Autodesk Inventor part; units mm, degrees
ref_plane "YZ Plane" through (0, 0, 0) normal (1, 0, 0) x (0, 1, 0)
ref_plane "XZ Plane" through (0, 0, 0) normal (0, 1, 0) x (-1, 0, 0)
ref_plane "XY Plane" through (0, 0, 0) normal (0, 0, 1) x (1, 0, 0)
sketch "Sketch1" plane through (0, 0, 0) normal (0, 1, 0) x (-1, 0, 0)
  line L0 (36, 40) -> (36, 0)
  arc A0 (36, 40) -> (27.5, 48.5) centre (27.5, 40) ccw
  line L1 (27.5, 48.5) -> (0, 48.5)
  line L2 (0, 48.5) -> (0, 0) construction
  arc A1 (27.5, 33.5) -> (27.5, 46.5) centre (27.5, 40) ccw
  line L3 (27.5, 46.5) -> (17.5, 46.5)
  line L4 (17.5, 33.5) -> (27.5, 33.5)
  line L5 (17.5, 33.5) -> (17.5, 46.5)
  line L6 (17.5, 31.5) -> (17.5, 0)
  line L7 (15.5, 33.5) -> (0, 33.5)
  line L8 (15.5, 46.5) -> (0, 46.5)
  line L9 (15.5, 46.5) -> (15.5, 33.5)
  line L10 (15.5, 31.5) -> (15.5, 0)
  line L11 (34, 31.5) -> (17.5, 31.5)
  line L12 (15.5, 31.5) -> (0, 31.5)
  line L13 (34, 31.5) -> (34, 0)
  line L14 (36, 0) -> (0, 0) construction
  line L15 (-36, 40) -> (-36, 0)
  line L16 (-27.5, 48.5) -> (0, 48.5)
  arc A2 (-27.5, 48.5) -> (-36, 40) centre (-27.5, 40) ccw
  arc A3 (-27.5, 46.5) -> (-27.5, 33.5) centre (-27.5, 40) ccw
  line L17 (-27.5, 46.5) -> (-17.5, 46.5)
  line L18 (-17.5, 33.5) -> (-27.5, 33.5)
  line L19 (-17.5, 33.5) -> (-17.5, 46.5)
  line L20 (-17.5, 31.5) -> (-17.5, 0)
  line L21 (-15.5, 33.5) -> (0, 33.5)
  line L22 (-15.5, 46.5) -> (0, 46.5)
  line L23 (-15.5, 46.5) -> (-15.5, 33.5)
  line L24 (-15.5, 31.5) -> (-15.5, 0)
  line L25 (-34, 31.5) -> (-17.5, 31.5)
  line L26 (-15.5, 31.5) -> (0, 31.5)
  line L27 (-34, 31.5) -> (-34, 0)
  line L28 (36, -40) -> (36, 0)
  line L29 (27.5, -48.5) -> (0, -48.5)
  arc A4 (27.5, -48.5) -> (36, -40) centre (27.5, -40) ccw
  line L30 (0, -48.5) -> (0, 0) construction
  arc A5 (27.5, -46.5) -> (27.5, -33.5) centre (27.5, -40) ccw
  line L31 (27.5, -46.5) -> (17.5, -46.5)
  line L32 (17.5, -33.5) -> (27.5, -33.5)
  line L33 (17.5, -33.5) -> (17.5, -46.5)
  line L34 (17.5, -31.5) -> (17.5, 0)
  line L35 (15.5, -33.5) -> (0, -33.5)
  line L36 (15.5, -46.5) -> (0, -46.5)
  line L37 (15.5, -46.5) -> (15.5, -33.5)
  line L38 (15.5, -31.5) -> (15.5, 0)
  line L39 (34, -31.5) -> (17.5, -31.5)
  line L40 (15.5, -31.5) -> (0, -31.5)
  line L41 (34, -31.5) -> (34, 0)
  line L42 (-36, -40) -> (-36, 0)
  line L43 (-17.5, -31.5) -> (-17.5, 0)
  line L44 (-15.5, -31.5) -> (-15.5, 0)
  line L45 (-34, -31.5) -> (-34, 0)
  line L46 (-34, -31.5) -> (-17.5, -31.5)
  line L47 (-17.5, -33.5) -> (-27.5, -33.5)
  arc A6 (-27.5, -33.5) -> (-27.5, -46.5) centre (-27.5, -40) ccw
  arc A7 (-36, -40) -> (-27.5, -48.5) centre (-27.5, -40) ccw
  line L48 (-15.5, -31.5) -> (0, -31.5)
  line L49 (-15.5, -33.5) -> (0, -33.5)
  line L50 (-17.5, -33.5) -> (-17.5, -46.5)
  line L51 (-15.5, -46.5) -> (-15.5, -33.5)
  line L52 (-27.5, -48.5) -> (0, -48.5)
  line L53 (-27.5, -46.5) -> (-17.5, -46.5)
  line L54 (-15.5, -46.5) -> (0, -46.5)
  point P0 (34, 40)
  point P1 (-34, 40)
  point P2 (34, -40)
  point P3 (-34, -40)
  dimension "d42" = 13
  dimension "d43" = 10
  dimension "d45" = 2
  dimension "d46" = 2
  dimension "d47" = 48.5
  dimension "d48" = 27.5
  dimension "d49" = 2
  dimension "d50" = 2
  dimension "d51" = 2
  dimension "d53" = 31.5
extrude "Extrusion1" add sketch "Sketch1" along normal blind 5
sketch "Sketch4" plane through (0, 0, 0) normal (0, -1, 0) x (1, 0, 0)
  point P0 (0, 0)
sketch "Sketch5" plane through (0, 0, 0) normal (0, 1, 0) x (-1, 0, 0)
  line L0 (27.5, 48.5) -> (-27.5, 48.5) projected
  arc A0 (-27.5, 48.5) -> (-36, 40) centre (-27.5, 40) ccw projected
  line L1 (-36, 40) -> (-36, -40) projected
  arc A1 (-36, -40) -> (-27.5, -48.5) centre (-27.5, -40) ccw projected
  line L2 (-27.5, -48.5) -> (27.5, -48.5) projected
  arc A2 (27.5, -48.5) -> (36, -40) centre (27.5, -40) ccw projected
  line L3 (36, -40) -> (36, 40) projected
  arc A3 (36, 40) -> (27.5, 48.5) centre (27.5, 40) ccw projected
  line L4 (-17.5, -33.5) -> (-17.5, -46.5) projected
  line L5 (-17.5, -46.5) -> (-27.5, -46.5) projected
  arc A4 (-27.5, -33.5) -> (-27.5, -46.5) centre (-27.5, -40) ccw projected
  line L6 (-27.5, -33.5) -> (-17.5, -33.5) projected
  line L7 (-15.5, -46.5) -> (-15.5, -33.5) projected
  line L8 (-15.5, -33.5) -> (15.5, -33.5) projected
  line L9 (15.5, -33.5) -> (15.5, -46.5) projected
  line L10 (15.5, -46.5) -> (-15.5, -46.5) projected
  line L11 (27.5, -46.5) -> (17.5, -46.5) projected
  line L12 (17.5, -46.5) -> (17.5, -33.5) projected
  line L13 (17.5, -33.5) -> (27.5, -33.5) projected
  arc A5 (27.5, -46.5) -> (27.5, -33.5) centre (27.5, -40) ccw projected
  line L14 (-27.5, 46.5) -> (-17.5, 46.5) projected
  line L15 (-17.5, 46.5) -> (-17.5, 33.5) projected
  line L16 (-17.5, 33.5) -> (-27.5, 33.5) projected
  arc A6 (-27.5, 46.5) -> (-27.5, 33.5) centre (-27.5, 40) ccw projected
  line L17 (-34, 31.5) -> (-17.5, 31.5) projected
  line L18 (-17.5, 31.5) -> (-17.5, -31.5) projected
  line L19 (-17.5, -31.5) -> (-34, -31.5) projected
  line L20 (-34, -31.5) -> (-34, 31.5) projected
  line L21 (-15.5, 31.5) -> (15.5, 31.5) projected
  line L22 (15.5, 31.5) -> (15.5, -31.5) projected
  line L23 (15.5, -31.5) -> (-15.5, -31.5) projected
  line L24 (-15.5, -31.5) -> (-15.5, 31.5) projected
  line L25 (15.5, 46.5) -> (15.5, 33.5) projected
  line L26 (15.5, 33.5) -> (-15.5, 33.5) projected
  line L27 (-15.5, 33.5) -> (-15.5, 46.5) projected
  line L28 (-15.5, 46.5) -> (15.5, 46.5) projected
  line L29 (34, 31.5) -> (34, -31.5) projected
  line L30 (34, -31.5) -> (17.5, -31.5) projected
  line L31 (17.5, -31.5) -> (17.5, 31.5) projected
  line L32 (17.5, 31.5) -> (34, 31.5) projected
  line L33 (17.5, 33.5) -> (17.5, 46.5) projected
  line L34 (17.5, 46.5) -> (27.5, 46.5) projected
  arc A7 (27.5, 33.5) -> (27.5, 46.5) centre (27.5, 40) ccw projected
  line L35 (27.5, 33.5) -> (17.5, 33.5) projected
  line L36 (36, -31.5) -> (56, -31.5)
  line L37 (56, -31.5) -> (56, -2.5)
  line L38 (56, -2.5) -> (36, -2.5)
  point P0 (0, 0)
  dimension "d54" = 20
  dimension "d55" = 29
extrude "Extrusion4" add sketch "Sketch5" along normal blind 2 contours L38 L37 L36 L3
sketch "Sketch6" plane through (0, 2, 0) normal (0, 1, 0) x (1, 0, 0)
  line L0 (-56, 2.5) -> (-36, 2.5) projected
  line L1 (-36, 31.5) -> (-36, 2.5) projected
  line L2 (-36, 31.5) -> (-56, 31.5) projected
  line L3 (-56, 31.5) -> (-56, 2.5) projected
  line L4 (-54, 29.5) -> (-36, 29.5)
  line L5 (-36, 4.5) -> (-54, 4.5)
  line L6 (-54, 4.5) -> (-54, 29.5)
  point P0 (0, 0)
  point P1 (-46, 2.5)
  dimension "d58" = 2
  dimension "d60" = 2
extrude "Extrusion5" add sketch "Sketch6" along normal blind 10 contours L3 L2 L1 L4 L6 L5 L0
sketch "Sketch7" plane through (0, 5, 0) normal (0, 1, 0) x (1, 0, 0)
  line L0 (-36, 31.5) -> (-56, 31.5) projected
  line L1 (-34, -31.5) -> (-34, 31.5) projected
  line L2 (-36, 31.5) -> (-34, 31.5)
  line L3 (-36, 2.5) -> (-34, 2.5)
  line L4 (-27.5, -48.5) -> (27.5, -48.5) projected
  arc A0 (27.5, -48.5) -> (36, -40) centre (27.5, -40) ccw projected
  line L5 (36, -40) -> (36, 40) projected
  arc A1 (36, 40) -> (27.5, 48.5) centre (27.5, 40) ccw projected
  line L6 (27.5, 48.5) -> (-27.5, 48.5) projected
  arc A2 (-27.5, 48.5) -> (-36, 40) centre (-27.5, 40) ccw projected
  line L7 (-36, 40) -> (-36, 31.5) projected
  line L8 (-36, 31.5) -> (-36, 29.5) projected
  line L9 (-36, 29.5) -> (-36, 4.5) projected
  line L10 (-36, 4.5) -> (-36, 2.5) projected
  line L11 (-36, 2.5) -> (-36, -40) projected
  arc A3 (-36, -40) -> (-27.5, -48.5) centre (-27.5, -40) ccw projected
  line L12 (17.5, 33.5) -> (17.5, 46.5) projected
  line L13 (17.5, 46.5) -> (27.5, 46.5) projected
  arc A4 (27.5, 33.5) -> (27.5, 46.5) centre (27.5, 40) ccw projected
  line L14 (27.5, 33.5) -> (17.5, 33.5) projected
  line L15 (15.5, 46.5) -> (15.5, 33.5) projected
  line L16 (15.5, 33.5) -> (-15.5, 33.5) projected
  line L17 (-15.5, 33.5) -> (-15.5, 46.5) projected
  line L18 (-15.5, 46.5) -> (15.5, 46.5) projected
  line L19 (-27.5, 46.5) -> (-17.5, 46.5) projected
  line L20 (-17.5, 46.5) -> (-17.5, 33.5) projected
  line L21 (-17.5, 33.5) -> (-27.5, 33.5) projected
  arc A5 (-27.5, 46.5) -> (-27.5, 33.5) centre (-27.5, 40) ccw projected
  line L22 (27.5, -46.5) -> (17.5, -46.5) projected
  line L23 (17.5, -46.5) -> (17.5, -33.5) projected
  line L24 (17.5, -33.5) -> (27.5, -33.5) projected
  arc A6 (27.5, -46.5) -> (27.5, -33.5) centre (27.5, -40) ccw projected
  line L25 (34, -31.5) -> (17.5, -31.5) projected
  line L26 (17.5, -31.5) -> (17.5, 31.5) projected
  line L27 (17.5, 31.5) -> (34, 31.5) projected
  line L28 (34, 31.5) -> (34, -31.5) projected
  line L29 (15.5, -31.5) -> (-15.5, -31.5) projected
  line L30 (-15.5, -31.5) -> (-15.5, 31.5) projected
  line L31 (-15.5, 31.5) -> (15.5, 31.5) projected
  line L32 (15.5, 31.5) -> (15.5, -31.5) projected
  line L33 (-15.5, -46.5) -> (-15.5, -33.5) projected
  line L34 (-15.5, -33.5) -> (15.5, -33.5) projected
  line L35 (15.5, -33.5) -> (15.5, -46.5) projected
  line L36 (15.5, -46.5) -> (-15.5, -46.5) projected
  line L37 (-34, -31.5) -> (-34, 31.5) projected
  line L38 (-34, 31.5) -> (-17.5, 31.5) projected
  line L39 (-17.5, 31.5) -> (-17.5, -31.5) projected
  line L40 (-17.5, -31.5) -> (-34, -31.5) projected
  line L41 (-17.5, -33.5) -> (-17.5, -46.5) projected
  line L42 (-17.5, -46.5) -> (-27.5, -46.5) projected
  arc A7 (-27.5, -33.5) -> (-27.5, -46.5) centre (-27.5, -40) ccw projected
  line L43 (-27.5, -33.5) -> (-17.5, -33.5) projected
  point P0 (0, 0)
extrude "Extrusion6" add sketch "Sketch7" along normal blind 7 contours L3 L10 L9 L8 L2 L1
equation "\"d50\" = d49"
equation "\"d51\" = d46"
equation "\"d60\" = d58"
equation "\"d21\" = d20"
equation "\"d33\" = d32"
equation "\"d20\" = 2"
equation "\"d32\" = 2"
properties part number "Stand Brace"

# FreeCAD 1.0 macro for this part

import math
import FreeCAD as App
import Part
import Sketcher


def add_polygon(sketch, points):
    """Adds a closed chain of lines whose ends are joined by coincident constraints."""
    first, n = sketch.GeometryCount, len(points)
    for a, b in zip(points, points[1:] + points[:1]):
        sketch.addGeometry(Part.LineSegment(App.Vector(*a, 0), App.Vector(*b, 0)), False)
    for i in range(n):
        sketch.addConstraint(Sketcher.Constraint("Coincident", first + i, 2, first + (i + 1) % n, 1))

doc = App.newDocument("Part")
body = doc.addObject("PartDesign::Body", "Body")

sketch1 = body.newObject("Sketcher::SketchObject", "Sketch")
sketch1.AttachmentSupport = (doc.getObject("XZ_Plane"), [""])
sketch1.MapMode = "FlatFace"
sketch1.addGeometry(Part.LineSegment(App.Vector(-36, -40, 0), App.Vector(-36, 40, 0)), False)
sketch1.addGeometry(Part.ArcOfCircle(Part.Circle(App.Vector(-28, 40, 0), App.Vector(0, 0, 1), 8), math.radians(90), math.radians(180)), False)
sketch1.addGeometry(Part.LineSegment(App.Vector(-28, 48, 0), App.Vector(28, 48, 0)), False)
sketch1.addGeometry(Part.ArcOfCircle(Part.Circle(App.Vector(28, 40, 0), App.Vector(0, 0, 1), 8), math.radians(0), math.radians(90)), False)
sketch1.addGeometry(Part.LineSegment(App.Vector(36, 40, 0), App.Vector(36, -40, 0)), False)
sketch1.addGeometry(Part.ArcOfCircle(Part.Circle(App.Vector(28, -40, 0), App.Vector(0, 0, 1), 8), math.radians(-90), math.radians(0)), False)
sketch1.addGeometry(Part.LineSegment(App.Vector(28, -48, 0), App.Vector(-28, -48, 0)), False)
sketch1.addGeometry(Part.ArcOfCircle(Part.Circle(App.Vector(-28, -40, 0), App.Vector(0, 0, 1), 8), math.radians(180), math.radians(270)), False)
sketch1.addGeometry(Part.LineSegment(App.Vector(28, -34, 0), App.Vector(18, -34, 0)), False)
sketch1.addGeometry(Part.LineSegment(App.Vector(18, -34, 0), App.Vector(18, -46, 0)), False)
sketch1.addGeometry(Part.LineSegment(App.Vector(18, -46, 0), App.Vector(28, -46, 0)), False)
sketch1.addGeometry(Part.ArcOfCircle(Part.Circle(App.Vector(28, -40, 0), App.Vector(0, 0, 1), 6), math.radians(-90), math.radians(90)), False)
add_polygon(sketch1, [(16, -34), (-16, -34), (-16, -46), (16, -46)])
sketch1.addGeometry(Part.ArcOfCircle(Part.Circle(App.Vector(-28, -40, 0), App.Vector(0, 0, 1), 6), math.radians(90), math.radians(270)), False)
sketch1.addGeometry(Part.LineSegment(App.Vector(-28, -46, 0), App.Vector(-18, -46, 0)), False)
sketch1.addGeometry(Part.LineSegment(App.Vector(-18, -46, 0), App.Vector(-18, -34, 0)), False)
sketch1.addGeometry(Part.LineSegment(App.Vector(-18, -34, 0), App.Vector(-28, -34, 0)), False)
add_polygon(sketch1, [(34, 32), (18, 32), (18, -32), (34, -32)])
sketch1.addGeometry(Part.ArcOfCircle(Part.Circle(App.Vector(28, 40, 0), App.Vector(0, 0, 1), 6), math.radians(-90), math.radians(90)), False)
sketch1.addGeometry(Part.LineSegment(App.Vector(28, 46, 0), App.Vector(18, 46, 0)), False)
sketch1.addGeometry(Part.LineSegment(App.Vector(18, 46, 0), App.Vector(18, 34, 0)), False)
sketch1.addGeometry(Part.LineSegment(App.Vector(18, 34, 0), App.Vector(28, 34, 0)), False)
add_polygon(sketch1, [(16, 32), (-16, 32), (-16, -32), (16, -32)])
add_polygon(sketch1, [(-18, -32), (-18, 32), (-34, 32), (-34, -32)])
add_polygon(sketch1, [(-16, 46), (-16, 34), (16, 34), (16, 46)])
sketch1.addGeometry(Part.ArcOfCircle(Part.Circle(App.Vector(-28, 40, 0), App.Vector(0, 0, 1), 6), math.radians(90), math.radians(270)), False)
sketch1.addGeometry(Part.LineSegment(App.Vector(-28, 34, 0), App.Vector(-18, 34, 0)), False)
sketch1.addGeometry(Part.LineSegment(App.Vector(-18, 34, 0), App.Vector(-18, 46, 0)), False)
sketch1.addGeometry(Part.LineSegment(App.Vector(-18, 46, 0), App.Vector(-28, 46, 0)), False)
sketch1.addConstraint([
    Sketcher.Constraint("Tangent", 0, 2, 1, 2),
    Sketcher.Constraint("Tangent", 1, 1, 2, 1),
    Sketcher.Constraint("Tangent", 2, 2, 3, 2),
    Sketcher.Constraint("Tangent", 3, 1, 4, 1),
    Sketcher.Constraint("Tangent", 4, 2, 5, 2),
    Sketcher.Constraint("Tangent", 5, 1, 6, 1),
    Sketcher.Constraint("Tangent", 6, 2, 7, 2),
    Sketcher.Constraint("Tangent", 7, 1, 0, 1),
    Sketcher.Constraint("Coincident", 8, 2, 9, 1),
    Sketcher.Constraint("Coincident", 9, 2, 10, 1),
    Sketcher.Constraint("Tangent", 10, 2, 11, 1),
    Sketcher.Constraint("Tangent", 11, 2, 8, 1),
    Sketcher.Constraint("Tangent", 16, 2, 17, 1),
    Sketcher.Constraint("Coincident", 17, 2, 18, 1),
    Sketcher.Constraint("Coincident", 18, 2, 19, 1),
    Sketcher.Constraint("Tangent", 19, 2, 16, 1),
    Sketcher.Constraint("Tangent", 24, 2, 25, 1),
    Sketcher.Constraint("Coincident", 25, 2, 26, 1),
    Sketcher.Constraint("Coincident", 26, 2, 27, 1),
    Sketcher.Constraint("Tangent", 27, 2, 24, 1),
    Sketcher.Constraint("Tangent", 40, 2, 41, 1),
    Sketcher.Constraint("Coincident", 41, 2, 42, 1),
    Sketcher.Constraint("Coincident", 42, 2, 43, 1),
    Sketcher.Constraint("Tangent", 43, 2, 40, 1),
    Sketcher.Constraint("Vertical", 0),
    Sketcher.Constraint("Horizontal", 2),
    Sketcher.Constraint("Vertical", 4),
    Sketcher.Constraint("Horizontal", 6),
    Sketcher.Constraint("Horizontal", 8),
    Sketcher.Constraint("Vertical", 9),
    Sketcher.Constraint("Horizontal", 10),
    Sketcher.Constraint("Horizontal", 12),
    Sketcher.Constraint("Vertical", 13),
    Sketcher.Constraint("Horizontal", 14),
    Sketcher.Constraint("Vertical", 15),
    Sketcher.Constraint("Horizontal", 17),
    Sketcher.Constraint("Vertical", 18),
    Sketcher.Constraint("Horizontal", 19),
    Sketcher.Constraint("Horizontal", 20),
    Sketcher.Constraint("Vertical", 21),
    Sketcher.Constraint("Horizontal", 22),
    Sketcher.Constraint("Vertical", 23),
    Sketcher.Constraint("Horizontal", 25),
    Sketcher.Constraint("Vertical", 26),
    Sketcher.Constraint("Horizontal", 27),
    Sketcher.Constraint("Horizontal", 28),
    Sketcher.Constraint("Vertical", 29),
    Sketcher.Constraint("Horizontal", 30),
    Sketcher.Constraint("Vertical", 31),
    Sketcher.Constraint("Vertical", 32),
    Sketcher.Constraint("Horizontal", 33),
    Sketcher.Constraint("Vertical", 34),
    Sketcher.Constraint("Horizontal", 35),
    Sketcher.Constraint("Vertical", 36),
    Sketcher.Constraint("Horizontal", 37),
    Sketcher.Constraint("Vertical", 38),
    Sketcher.Constraint("Horizontal", 39),
    Sketcher.Constraint("Horizontal", 41),
    Sketcher.Constraint("Vertical", 42),
    Sketcher.Constraint("Horizontal", 43),
    Sketcher.Constraint("Coincident", 11, 3, 5, 3),
    Sketcher.Constraint("Coincident", 16, 3, 7, 3),
    Sketcher.Constraint("Coincident", 24, 3, 3, 3),
    Sketcher.Constraint("Coincident", 40, 3, 1, 3),
    Sketcher.Constraint("Equal", 1, 3),
    Sketcher.Constraint("Equal", 3, 5),
    Sketcher.Constraint("Equal", 5, 7),
    Sketcher.Constraint("Equal", 11, 16),
    Sketcher.Constraint("Equal", 16, 24),
    Sketcher.Constraint("Equal", 24, 40),
    Sketcher.Constraint("Symmetric", 1, 3, 5, 3, -1, 1),
    Sketcher.Constraint("Symmetric", 28, 2, 30, 2, -1, 1),
    Sketcher.Constraint("Symmetric", 21, 2, 32, 2, -1, 1),
    Sketcher.Constraint("Symmetric", 23, 2, 34, 2, -1, 1),
    Sketcher.Constraint("Symmetric", 15, 2, 36, 2, -1, 1),
    Sketcher.Constraint("Symmetric", 13, 2, 38, 2, -1, 1),
    Sketcher.Constraint("Horizontal", 11, 2, 12, 2),
    Sketcher.Constraint("Horizontal", 10, 2, 13, 2),
    Sketcher.Constraint("Horizontal", 23, 2, 28, 2),
    Sketcher.Constraint("Horizontal", 22, 2, 29, 2),
    Sketcher.Constraint("Vertical", 9, 2, 20, 2),
    Sketcher.Constraint("Vertical", 21, 2, 25, 2),
    Sketcher.Constraint("Vertical", 13, 2, 28, 2),
    Sketcher.Constraint("Vertical", 15, 2, 30, 2),
    Sketcher.Constraint("Vertical", 18, 2, 32, 2),
    Sketcher.Constraint("Vertical", 35, 2, 41, 2),
    Sketcher.Constraint("Radius", 11, 6.5),
    Sketcher.Constraint("DistanceX", 8, 2, 8, 1, 10.0),
    Sketcher.Constraint("DistanceY", 5, 1, 9, 2, 2.0),
    Sketcher.Constraint("DistanceX", 14, 2, 9, 2, 2.0),
    Sketcher.Constraint("DistanceY", 8, 2, 21, 2, 2.0),
    Sketcher.Constraint("DistanceX", 22, 2, 4, 2, 2.0),
    Sketcher.Constraint("DistanceX", 1, 3, -1, 1, 27.5),
    Sketcher.Constraint("DistanceY", -1, 1, 1, 1, 48.5),
])
pad1 = body.newObject("PartDesign::Pad", "Pad")
pad1.Profile = sketch1
pad1.Length = 5
pad1.Reversed = True

sketch2 = body.newObject("Sketcher::SketchObject", "Sketch001")
sketch2.AttachmentSupport = (doc.getObject("XZ_Plane"), [""])
sketch2.MapMode = "FlatFace"
add_polygon(sketch2, [(-56, -2), (-36, -2), (-36, -32), (-56, -32)])
sketch2.addConstraint([
    Sketcher.Constraint("Horizontal", 0),
    Sketcher.Constraint("Vertical", 1),
    Sketcher.Constraint("Horizontal", 2),
    Sketcher.Constraint("Vertical", 3),
    Sketcher.Constraint("DistanceX", 0, 1, 0, 2, 20.0),
    Sketcher.Constraint("DistanceY", 1, 2, 1, 1, 29.0),
    Sketcher.Constraint("DistanceX", 0, 2, -1, 1, 36.0),
    Sketcher.Constraint("DistanceY", 0, 2, -1, 1, 2.5),
])
pad2 = body.newObject("PartDesign::Pad", "Pad001")
pad2.Profile = sketch2
pad2.Length = 2
pad2.Reversed = True

sketch3 = body.newObject("Sketcher::SketchObject", "Sketch002")
sketch3.AttachmentSupport = (doc.getObject("XZ_Plane"), [""])
sketch3.MapMode = "FlatFace"
sketch3.AttachmentOffset = App.Placement(App.Vector(0, 0, -2), App.Rotation())
add_polygon(sketch3, [(-56, -31.5), (-56, -2.5), (-36, -2.5), (-36, -4.5), (-54, -4.5), (-54, -29.5), (-36, -29.5), (-36, -31.5)])
sketch3.addConstraint([
    Sketcher.Constraint("Vertical", 0),
    Sketcher.Constraint("Horizontal", 1),
    Sketcher.Constraint("Vertical", 2),
    Sketcher.Constraint("Horizontal", 3),
    Sketcher.Constraint("Vertical", 4),
    Sketcher.Constraint("Horizontal", 5),
    Sketcher.Constraint("Vertical", 6),
    Sketcher.Constraint("Horizontal", 7),
    Sketcher.Constraint("Vertical", 2, 2, 5, 2),
    Sketcher.Constraint("Equal", 2, 6),
    Sketcher.Constraint("DistanceY", 2, 2, 2, 1, 2.0),
    Sketcher.Constraint("DistanceX", 0, 2, 3, 2, 2.0),
    Sketcher.Constraint("DistanceX", 1, 1, 1, 2, 20.0),
    Sketcher.Constraint("DistanceY", 0, 1, 0, 2, 29.0),
    Sketcher.Constraint("DistanceX", 0, 2, -1, 1, 56.0),
    Sketcher.Constraint("DistanceY", 0, 2, -1, 1, 2.5),
])
pad3 = body.newObject("PartDesign::Pad", "Pad002")
pad3.Profile = sketch3
pad3.Length = 10
pad3.Reversed = True

sketch4 = body.newObject("Sketcher::SketchObject", "Sketch003")
sketch4.AttachmentSupport = (doc.getObject("XZ_Plane"), [""])
sketch4.MapMode = "FlatFace"
sketch4.AttachmentOffset = App.Placement(App.Vector(0, 0, -5), App.Rotation())
add_polygon(sketch4, [(-36, -2.5), (-34, -2.5), (-34, -31.5), (-36, -31.5)])
sketch4.addConstraint([
    Sketcher.Constraint("Horizontal", 0),
    Sketcher.Constraint("Vertical", 1),
    Sketcher.Constraint("Horizontal", 2),
    Sketcher.Constraint("Vertical", 3),
    Sketcher.Constraint("DistanceX", 0, 1, 0, 2, 2.0),
    Sketcher.Constraint("DistanceY", 1, 2, 1, 1, 29.0),
    Sketcher.Constraint("DistanceX", 0, 2, -1, 1, 34.0),
    Sketcher.Constraint("DistanceY", 0, 2, -1, 1, 2.5),
])
pad4 = body.newObject("PartDesign::Pad", "Pad003")
pad4.Profile = sketch4
pad4.Length = 7
pad4.Reversed = True

doc.recompute()
